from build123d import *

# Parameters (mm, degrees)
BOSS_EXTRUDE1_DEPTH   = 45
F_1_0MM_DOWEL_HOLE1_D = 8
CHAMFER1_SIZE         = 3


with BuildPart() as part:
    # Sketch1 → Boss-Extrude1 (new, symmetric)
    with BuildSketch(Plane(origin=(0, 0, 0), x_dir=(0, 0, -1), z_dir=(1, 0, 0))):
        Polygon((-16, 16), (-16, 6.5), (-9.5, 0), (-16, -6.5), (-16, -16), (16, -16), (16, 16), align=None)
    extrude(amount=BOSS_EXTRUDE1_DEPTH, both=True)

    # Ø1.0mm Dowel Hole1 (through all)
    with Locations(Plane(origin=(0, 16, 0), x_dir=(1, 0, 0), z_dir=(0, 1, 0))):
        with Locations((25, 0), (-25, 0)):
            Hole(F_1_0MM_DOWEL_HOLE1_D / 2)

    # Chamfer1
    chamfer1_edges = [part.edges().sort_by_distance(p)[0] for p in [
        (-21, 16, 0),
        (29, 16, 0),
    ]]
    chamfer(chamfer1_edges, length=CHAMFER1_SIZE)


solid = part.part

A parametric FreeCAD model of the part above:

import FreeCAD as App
import Part
import Sketcher

V = App.Vector
Q = App.Units.Quantity


def edges_at(feature, points):
    """Names of the edges that pass closest to the given points."""
    edges = feature.Shape.Edges
    near = lambda p: min(range(len(edges)), key=lambda i: edges[i].distToShape(Part.Vertex(*p))[0])
    return sorted({f"Edge{near(p) + 1}" for p in points})

doc = App.newDocument("Part")
body = doc.addObject("PartDesign::Body", "Body")

sketch1 = body.newObject("Sketcher::SketchObject", "Sketch")
sketch1.AttachmentSupport = (doc.getObject("YZ_Plane"), [""])
sketch1.MapMode = "FlatFace"
sketch1.addGeometry(Part.LineSegment(V(16, 16, 0), V(6, 16, 0)), False)
sketch1.addGeometry(Part.LineSegment(V(6, 16, 0), V(0, 10, 0)), False)
sketch1.addGeometry(Part.LineSegment(V(0, 10, 0), V(-6, 16, 0)), False)
sketch1.addGeometry(Part.LineSegment(V(-6, 16, 0), V(-16, 16, 0)), False)
sketch1.addGeometry(Part.LineSegment(V(-16, 16, 0), V(-16, -16, 0)), False)
sketch1.addGeometry(Part.LineSegment(V(-16, -16, 0), V(16, -16, 0)), False)
sketch1.addGeometry(Part.LineSegment(V(16, -16, 0), V(16, 16, 0)), False)
sketch1.addConstraint(Sketcher.Constraint("Coincident", 0, 2, 1, 1))
sketch1.addConstraint(Sketcher.Constraint("Coincident", 1, 2, 2, 1))
sketch1.addConstraint(Sketcher.Constraint("Coincident", 2, 2, 3, 1))
sketch1.addConstraint(Sketcher.Constraint("Coincident", 3, 2, 4, 1))
sketch1.addConstraint(Sketcher.Constraint("Coincident", 4, 2, 5, 1))
sketch1.addConstraint(Sketcher.Constraint("Coincident", 5, 2, 6, 1))
sketch1.addConstraint(Sketcher.Constraint("Coincident", 6, 2, 0, 1))
sketch1.addConstraint(Sketcher.Constraint("Horizontal", 0))
sketch1.addConstraint(Sketcher.Constraint("Horizontal", 3))
sketch1.addConstraint(Sketcher.Constraint("Vertical", 4))
sketch1.addConstraint(Sketcher.Constraint("Horizontal", 5))
sketch1.addConstraint(Sketcher.Constraint("Vertical", 6))
sketch1.addConstraint(Sketcher.Constraint("Symmetric", 3, 2, 5, 2, -1, 1))
sketch1.addConstraint(Sketcher.Constraint("Symmetric", 0, 2, 2, 2, -2))
sketch1.addConstraint(Sketcher.Constraint("PointOnObject", 1, 2, -2))
sketch1.addConstraint(Sketcher.Constraint("Perpendicular", 1, 2))
sketch1.addConstraint(Sketcher.Constraint("Equal", 5, 4))
sketch1.addConstraint(Sketcher.Constraint("DistanceX", 5, 1, 5, 2, Q("32 mm")))
sketch1.addConstraint(Sketcher.Constraint("DistanceX", 0, 2, 0, 1, Q("9.5 mm")))
pad1 = body.newObject("PartDesign::Pad", "Pad")
pad1.Profile = sketch1
pad1.Length = 90
pad1.Midplane = True

sketch2 = body.newObject("Sketcher::SketchObject", "Sketch001")
sketch2.AttachmentSupport = (doc.getObject("XZ_Plane"), [""])
sketch2.MapMode = "FlatFace"
sketch2.AttachmentOffset = App.Placement(V(0, 0, -16), App.Rotation())
sketch2.addGeometry(Part.Circle(V(25, 0, 0), V(0, 0, 1), 4), False)
sketch2.addGeometry(Part.Circle(V(-25, 0, 0), V(0, 0, 1), 4), False)
sketch2.addConstraint(Sketcher.Constraint("Equal", 0, 1))
sketch2.addConstraint(Sketcher.Constraint("Symmetric", 0, 3, 1, 3, -1, 1))
sketch2.addConstraint(Sketcher.Constraint("PointOnObject", 0, 3, -1))
sketch2.addConstraint(Sketcher.Constraint("Diameter", 0, Q("8 mm")))
sketch2.addConstraint(Sketcher.Constraint("DistanceX", -1, 1, 0, 3, Q("25 mm")))
doc.recompute()
hole = body.newObject("PartDesign::Hole", "Hole")
hole.Profile = sketch2
hole.ThreadType = "None"
hole.Diameter = 8
hole.DepthType = "ThroughAll"
hole.Reversed = True
doc.recompute()

chamfer = body.newObject("PartDesign::Chamfer", "Chamfer")
chamfer.Base = (hole, edges_at(hole, [(-21, 16, 0), (29, 16, 0)]))
chamfer.Size = 3

doc.recompute()
